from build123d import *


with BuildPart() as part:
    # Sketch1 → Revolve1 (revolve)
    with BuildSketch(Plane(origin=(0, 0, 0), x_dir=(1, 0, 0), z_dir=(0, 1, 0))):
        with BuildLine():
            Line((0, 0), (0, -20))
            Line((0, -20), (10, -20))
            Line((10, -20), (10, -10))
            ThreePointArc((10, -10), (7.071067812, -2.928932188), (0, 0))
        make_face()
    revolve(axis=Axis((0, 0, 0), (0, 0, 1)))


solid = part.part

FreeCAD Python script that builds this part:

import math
import FreeCAD as App
import Part
import Sketcher

V = App.Vector
Q = App.Units.Quantity

doc = App.newDocument("Part")
body = doc.addObject("PartDesign::Body", "Body")

sketch1 = doc.addObject("Sketcher::SketchObject", "Sketch")
body.addObject(sketch1)
sketch1.AttachmentSupport = (doc.XZ_Plane, [""])
sketch1.MapMode = "FlatFace"
sketch1.addGeometry([
    Part.LineSegment(V(0, 0, 0), V(0, 20, 0)),
    Part.LineSegment(V(0, 20, 0), V(10, 20, 0)),
    Part.LineSegment(V(10, 20, 0), V(10, 10, 0)),
    Part.ArcOfCircle(Part.Circle(V(0, 10, 0), V(0, 0, 1), 10), math.radians(-90), math.radians(0)),
], False)
sketch1.addConstraint([
    Sketcher.Constraint("Coincident", 0, 2, 1, 1),
    Sketcher.Constraint("Coincident", 1, 2, 2, 1),
    Sketcher.Constraint("Tangent", 2, 2, 3, 2),
    Sketcher.Constraint("Coincident", 3, 1, 0, 1),
    Sketcher.Constraint("Vertical", 0),
    Sketcher.Constraint("Horizontal", 1),
    Sketcher.Constraint("Vertical", 2),
    Sketcher.Constraint("Coincident", 3, 1, -1, 1),
    Sketcher.Constraint("PointOnObject", 3, 3, -2),
    Sketcher.Constraint("Equal", 1, 2),
    Sketcher.Constraint("Radius", 3, Q("10 mm")),
])
revolution = doc.addObject("PartDesign::Revolution", "Revolution")
body.addObject(revolution)
revolution.Profile = sketch1
revolution.ReferenceAxis = (sketch1, ["V_Axis"])
revolution.Angle = 360

doc.recompute()
